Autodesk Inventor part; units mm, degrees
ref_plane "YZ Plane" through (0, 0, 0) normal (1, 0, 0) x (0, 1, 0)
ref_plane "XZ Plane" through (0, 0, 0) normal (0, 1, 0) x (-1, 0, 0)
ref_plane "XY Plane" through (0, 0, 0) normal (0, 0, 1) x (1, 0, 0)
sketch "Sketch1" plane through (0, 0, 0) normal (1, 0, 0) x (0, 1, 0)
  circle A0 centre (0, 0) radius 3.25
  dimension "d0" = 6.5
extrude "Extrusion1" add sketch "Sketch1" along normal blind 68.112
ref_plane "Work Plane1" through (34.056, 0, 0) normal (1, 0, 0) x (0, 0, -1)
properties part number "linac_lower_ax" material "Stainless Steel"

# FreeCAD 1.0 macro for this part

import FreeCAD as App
import Part
import Sketcher

V = App.Vector
Q = App.Units.Quantity

doc = App.newDocument("Part")
params = doc.addObject("Spreadsheet::Sheet", "Params")
for row, (alias, value) in enumerate([
    ("sketch1_diameter", "6.5 mm"),
    ("pad1_length", "68.112 mm"),
], start=1):
    params.set(f"A{row}", alias)
    params.set(f"B{row}", "=" + value)
    params.setAlias(f"B{row}", alias)

body = doc.addObject("PartDesign::Body", "Body")

sketch1 = body.newObject("Sketcher::SketchObject", "Sketch")
sketch1.AttachmentSupport = (doc.getObject("YZ_Plane"), [""])
sketch1.MapMode = "FlatFace"
sketch1.addGeometry(Part.Circle(V(0, 0, 0), V(0, 0, 1), 3.2), False)
sketch1.addConstraint([
    Sketcher.Constraint("Coincident", 0, 3, -1, 1),
    Sketcher.Constraint("Diameter", 0, Q("6.5 mm")),
])
sketch1.setExpression("Constraints[1]", "Params.sketch1_diameter")
pad1 = body.newObject("PartDesign::Pad", "Pad")
pad1.Profile = sketch1
pad1.setExpression("Length", "Params.pad1_length")

doc.recompute()
